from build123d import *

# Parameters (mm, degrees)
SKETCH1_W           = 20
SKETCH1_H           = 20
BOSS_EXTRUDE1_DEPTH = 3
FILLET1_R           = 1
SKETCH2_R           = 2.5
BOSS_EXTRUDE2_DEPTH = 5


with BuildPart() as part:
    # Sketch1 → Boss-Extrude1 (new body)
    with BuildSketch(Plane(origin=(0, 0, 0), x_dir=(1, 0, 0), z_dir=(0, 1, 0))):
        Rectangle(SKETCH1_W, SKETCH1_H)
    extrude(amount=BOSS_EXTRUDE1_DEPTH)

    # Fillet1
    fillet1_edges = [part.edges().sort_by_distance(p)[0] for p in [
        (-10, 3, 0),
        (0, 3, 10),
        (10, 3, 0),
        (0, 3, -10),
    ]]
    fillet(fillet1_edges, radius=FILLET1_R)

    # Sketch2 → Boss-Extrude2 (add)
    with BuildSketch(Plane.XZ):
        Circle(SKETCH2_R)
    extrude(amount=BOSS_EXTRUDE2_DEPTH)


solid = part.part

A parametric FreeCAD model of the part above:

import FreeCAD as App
import Part
import Sketcher

V = App.Vector


def edges_at(feature, points):
    """Names of the edges that pass closest to the given points."""
    edges = feature.Shape.Edges
    near = lambda p: min(range(len(edges)), key=lambda i: edges[i].distToShape(Part.Vertex(*p))[0])
    return sorted({f"Edge{near(p) + 1}" for p in points})

doc = App.newDocument("Part")
params = doc.addObject("Spreadsheet::Sheet", "Params")
for row, (alias, value) in enumerate([
    ("sketch1_width", "20 mm"),
    ("pad1_length", "3 mm"),
    ("fillet_radius", "1 mm"),
    ("sketch2_diameter", "5 mm"),
    ("pad2_length", "5 mm"),
], start=1):
    params.set(f"A{row}", alias)
    params.set(f"B{row}", "=" + value)
    params.setAlias(f"B{row}", alias)

body = doc.addObject("PartDesign::Body", "Body")

# Sketch on XZ plane
sketch1 = doc.addObject("Sketcher::SketchObject", "Sketch")
body.addObject(sketch1)
sketch1.AttachmentSupport = (doc.XZ_Plane, [""])
sketch1.MapMode = "FlatFace"
sketch1.addGeometry([
    Part.LineSegment(V(-10, -10, 0), V(-10, 10, 0)),
    Part.LineSegment(V(-10, 10, 0), V(10, 10, 0)),
    Part.LineSegment(V(10, 10, 0), V(10, -10, 0)),
    Part.LineSegment(V(10, -10, 0), V(-10, -10, 0)),
], False)
sketch1.addConstraint([
    Sketcher.Constraint("Coincident", 0, 2, 1, 1),
    Sketcher.Constraint("Coincident", 1, 2, 2, 1),
    Sketcher.Constraint("Coincident", 2, 2, 3, 1),
    Sketcher.Constraint("Coincident", 3, 2, 0, 1),
    Sketcher.Constraint("Vertical", 0),
    Sketcher.Constraint("Horizontal", 1),
    Sketcher.Constraint("Vertical", 2),
    Sketcher.Constraint("Horizontal", 3),
    Sketcher.Constraint("Symmetric", 0, 2, 2, 2, -1, 1),
    Sketcher.Constraint("Equal", 3, 0),
    Sketcher.Constraint("DistanceX", 1, 1, 1, 2, 20.0),
])
sketch1.setExpression("Constraints[10]", "Params.sketch1_width")
pad1 = doc.addObject("PartDesign::Pad", "Pad")
body.addObject(pad1)
pad1.Profile = sketch1
pad1.setExpression("Length", "Params.pad1_length")
pad1.Reversed = True
doc.recompute()

fillet = doc.addObject("PartDesign::Fillet", "Fillet")
body.addObject(fillet)
fillet.Base = (pad1, edges_at(pad1, [
    (-10, 3, 0),
    (0, 3, 10),
    (10, 3, 0),
    (0, 3, -10),
]))
fillet.setExpression("Radius", "Params.fillet_radius")

# Sketch on XZ plane
sketch2 = doc.addObject("Sketcher::SketchObject", "Sketch001")
body.addObject(sketch2)
sketch2.AttachmentSupport = (doc.XZ_Plane, [""])
sketch2.MapMode = "FlatFace"
sketch2.addGeometry(Part.Circle(V(0, 0, 0), V(0, 0, 1), 2.5), False)
sketch2.addConstraint([
    Sketcher.Constraint("Coincident", 0, 3, -1, 1),
    Sketcher.Constraint("Diameter", 0, 5.0),
])
sketch2.setExpression("Constraints[1]", "Params.sketch2_diameter")
pad2 = doc.addObject("PartDesign::Pad", "Pad001")
body.addObject(pad2)
pad2.Profile = sketch2
pad2.setExpression("Length", "Params.pad2_length")

doc.recompute()
